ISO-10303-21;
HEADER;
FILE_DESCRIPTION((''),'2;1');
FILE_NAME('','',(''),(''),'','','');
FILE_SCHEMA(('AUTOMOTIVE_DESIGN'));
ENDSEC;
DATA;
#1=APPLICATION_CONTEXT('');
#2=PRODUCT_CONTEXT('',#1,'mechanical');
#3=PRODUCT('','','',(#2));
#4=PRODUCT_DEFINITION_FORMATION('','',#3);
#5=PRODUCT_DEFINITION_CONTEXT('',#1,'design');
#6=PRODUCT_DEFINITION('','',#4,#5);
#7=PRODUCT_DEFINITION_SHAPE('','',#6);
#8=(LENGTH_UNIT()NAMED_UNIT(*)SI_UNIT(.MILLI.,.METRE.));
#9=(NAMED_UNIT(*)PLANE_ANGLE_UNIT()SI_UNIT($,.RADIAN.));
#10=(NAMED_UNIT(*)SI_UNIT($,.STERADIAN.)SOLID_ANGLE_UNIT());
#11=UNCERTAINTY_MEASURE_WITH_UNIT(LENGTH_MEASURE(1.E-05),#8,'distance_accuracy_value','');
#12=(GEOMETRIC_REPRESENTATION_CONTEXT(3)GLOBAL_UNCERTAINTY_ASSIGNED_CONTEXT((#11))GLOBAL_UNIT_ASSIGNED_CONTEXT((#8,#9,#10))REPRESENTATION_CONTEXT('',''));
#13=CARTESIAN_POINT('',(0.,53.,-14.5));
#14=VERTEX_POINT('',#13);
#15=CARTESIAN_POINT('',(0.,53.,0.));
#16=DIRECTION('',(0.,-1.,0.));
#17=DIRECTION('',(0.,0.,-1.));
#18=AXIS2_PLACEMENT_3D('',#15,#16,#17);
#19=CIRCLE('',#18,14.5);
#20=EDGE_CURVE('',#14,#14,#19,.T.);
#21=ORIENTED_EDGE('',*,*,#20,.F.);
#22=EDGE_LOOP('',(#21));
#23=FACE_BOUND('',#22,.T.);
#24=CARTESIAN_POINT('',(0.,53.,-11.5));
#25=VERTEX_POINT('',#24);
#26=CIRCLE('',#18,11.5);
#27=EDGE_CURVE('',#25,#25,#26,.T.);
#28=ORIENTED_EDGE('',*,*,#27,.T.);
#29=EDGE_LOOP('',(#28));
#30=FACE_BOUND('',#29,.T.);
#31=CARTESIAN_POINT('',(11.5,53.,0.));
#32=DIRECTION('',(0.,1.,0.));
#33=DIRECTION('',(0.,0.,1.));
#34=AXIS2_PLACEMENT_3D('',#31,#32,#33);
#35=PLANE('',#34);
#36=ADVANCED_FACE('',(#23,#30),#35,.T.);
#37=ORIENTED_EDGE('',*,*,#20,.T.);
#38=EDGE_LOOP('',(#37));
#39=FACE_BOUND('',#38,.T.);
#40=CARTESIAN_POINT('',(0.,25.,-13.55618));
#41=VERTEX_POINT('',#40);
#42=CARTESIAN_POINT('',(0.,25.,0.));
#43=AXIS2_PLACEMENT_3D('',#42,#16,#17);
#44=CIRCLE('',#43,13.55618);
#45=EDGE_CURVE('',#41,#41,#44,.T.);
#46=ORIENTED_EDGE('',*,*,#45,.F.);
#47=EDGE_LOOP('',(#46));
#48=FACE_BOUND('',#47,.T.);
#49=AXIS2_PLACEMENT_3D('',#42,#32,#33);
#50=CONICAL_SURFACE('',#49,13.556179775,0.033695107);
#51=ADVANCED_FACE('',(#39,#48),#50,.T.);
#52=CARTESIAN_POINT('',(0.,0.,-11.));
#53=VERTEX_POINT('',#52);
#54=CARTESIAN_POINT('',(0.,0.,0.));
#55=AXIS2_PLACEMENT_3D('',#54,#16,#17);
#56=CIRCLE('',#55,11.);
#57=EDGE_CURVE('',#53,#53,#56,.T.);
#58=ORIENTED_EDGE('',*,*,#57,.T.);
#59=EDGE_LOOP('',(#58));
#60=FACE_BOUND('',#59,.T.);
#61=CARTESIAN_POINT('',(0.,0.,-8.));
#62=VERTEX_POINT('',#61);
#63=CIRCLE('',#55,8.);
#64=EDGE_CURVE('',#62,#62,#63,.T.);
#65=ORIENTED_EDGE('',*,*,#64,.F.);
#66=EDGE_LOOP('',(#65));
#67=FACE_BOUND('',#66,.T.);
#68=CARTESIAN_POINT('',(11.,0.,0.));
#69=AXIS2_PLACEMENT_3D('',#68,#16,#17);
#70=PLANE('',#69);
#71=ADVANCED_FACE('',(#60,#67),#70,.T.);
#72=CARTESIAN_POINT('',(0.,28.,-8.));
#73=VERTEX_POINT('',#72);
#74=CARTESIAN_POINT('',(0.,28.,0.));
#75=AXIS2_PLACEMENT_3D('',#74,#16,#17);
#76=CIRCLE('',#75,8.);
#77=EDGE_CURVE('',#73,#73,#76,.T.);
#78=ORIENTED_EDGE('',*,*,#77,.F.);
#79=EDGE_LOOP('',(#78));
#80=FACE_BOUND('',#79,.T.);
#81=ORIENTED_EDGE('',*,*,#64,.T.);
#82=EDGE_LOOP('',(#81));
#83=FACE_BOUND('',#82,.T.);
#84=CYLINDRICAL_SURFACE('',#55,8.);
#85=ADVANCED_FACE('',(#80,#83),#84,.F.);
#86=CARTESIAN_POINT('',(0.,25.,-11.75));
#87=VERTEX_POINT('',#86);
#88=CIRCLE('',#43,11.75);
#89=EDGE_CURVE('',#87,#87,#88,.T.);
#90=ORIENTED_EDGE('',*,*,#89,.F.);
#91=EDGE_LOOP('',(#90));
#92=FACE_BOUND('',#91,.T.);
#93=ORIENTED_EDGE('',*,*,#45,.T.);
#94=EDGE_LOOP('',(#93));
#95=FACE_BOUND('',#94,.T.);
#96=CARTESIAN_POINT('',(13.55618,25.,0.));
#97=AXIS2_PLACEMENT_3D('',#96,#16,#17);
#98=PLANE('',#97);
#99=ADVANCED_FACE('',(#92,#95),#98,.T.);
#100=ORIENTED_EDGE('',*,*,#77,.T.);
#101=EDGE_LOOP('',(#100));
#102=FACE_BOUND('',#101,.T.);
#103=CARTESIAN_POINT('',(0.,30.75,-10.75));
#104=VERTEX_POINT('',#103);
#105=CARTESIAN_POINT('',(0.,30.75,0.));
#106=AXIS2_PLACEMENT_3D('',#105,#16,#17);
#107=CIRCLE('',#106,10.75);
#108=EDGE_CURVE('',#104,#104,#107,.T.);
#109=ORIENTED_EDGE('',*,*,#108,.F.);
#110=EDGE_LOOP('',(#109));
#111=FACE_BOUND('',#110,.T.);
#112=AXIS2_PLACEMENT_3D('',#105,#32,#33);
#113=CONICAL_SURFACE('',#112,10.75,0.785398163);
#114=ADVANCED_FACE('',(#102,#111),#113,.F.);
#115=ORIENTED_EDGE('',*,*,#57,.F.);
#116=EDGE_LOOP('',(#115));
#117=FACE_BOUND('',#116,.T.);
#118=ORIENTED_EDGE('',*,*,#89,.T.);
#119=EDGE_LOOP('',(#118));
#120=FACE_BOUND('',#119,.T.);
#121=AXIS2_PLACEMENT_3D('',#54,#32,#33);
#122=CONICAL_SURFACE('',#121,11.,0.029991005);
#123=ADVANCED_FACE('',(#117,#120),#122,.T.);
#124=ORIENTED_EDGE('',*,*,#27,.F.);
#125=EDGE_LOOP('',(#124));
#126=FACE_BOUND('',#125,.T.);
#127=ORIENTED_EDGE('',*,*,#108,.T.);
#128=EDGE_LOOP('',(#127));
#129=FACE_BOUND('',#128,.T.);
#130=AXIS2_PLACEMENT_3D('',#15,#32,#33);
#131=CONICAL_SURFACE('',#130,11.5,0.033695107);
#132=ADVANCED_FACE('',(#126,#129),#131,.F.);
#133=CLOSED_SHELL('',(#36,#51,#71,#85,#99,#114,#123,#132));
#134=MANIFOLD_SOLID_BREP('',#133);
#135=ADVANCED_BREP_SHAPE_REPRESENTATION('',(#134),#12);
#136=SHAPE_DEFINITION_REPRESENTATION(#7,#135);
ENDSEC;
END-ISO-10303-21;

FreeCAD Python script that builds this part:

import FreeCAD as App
import Part
import Sketcher
from FreeCAD import Vector
Q = App.Units.Quantity


def add_polygon(sketch, points):
    """Adds a closed chain of lines whose ends are joined by coincident constraints."""
    first, n = sketch.GeometryCount, len(points)
    for a, b in zip(points, points[1:] + points[:1]):
        sketch.addGeometry(Part.LineSegment(App.Vector(*a, 0), App.Vector(*b, 0)), False)
    for i in range(n):
        sketch.addConstraint(Sketcher.Constraint("Coincident", first + i, 2, first + (i + 1) % n, 1))

doc = App.newDocument("Part")
body = doc.addObject("PartDesign::Body", "Body")

# Sketch on XY plane
sketch1 = doc.addObject("Sketcher::SketchObject", "Sketch")
body.addObject(sketch1)
sketch1.AttachmentSupport = (doc.XY_Plane, [""])
sketch1.MapMode = "FlatFace"
add_polygon(sketch1, [(8, 28), (8, 0), (11, 0), (11.75, 25), (13.55618, 25), (14.5, 53), (11.5, 53), (10.75, 30.75)])  # lines 0-7
sketch1.addConstraint([
    Sketcher.Constraint("Vertical", 0),
    Sketcher.Constraint("Horizontal", 1),
    Sketcher.Constraint("Horizontal", 3),
    Sketcher.Constraint("Horizontal", 5),
    Sketcher.Constraint("PointOnObject", 0, 2, -1),
    Sketcher.Constraint("Parallel", 4, 6),
    Sketcher.Constraint("Equal", 1, 5),
    Sketcher.Constraint("DistanceX", 1, 1, 1, 2, 3.0),
    Sketcher.Constraint("DistanceY", 0, 2, 0, 1, 28.0),
    Sketcher.Constraint("Angle", 7, Q("-135 deg")),
    Sketcher.Constraint("DistanceX", -1, 1, 0, 2, 8.0),
    Sketcher.Constraint("DistanceY", -1, 1, 2, 2, 25.0),
    Sketcher.Constraint("DistanceY", -1, 1, 4, 2, 53.0),
    Sketcher.Constraint("DistanceX", 6, 2, 2, 2, 1.0),
    Sketcher.Constraint("DistanceX", -1, 1, 4, 2, 14.5),
    Sketcher.Constraint("DistanceX", -1, 1, 2, 2, 11.75),
])
revolution = doc.addObject("PartDesign::Revolution", "Revolution")
body.addObject(revolution)
revolution.Profile = sketch1
revolution.ReferenceAxis = (sketch1, ["V_Axis"])
revolution.Angle = 360

doc.recompute()
